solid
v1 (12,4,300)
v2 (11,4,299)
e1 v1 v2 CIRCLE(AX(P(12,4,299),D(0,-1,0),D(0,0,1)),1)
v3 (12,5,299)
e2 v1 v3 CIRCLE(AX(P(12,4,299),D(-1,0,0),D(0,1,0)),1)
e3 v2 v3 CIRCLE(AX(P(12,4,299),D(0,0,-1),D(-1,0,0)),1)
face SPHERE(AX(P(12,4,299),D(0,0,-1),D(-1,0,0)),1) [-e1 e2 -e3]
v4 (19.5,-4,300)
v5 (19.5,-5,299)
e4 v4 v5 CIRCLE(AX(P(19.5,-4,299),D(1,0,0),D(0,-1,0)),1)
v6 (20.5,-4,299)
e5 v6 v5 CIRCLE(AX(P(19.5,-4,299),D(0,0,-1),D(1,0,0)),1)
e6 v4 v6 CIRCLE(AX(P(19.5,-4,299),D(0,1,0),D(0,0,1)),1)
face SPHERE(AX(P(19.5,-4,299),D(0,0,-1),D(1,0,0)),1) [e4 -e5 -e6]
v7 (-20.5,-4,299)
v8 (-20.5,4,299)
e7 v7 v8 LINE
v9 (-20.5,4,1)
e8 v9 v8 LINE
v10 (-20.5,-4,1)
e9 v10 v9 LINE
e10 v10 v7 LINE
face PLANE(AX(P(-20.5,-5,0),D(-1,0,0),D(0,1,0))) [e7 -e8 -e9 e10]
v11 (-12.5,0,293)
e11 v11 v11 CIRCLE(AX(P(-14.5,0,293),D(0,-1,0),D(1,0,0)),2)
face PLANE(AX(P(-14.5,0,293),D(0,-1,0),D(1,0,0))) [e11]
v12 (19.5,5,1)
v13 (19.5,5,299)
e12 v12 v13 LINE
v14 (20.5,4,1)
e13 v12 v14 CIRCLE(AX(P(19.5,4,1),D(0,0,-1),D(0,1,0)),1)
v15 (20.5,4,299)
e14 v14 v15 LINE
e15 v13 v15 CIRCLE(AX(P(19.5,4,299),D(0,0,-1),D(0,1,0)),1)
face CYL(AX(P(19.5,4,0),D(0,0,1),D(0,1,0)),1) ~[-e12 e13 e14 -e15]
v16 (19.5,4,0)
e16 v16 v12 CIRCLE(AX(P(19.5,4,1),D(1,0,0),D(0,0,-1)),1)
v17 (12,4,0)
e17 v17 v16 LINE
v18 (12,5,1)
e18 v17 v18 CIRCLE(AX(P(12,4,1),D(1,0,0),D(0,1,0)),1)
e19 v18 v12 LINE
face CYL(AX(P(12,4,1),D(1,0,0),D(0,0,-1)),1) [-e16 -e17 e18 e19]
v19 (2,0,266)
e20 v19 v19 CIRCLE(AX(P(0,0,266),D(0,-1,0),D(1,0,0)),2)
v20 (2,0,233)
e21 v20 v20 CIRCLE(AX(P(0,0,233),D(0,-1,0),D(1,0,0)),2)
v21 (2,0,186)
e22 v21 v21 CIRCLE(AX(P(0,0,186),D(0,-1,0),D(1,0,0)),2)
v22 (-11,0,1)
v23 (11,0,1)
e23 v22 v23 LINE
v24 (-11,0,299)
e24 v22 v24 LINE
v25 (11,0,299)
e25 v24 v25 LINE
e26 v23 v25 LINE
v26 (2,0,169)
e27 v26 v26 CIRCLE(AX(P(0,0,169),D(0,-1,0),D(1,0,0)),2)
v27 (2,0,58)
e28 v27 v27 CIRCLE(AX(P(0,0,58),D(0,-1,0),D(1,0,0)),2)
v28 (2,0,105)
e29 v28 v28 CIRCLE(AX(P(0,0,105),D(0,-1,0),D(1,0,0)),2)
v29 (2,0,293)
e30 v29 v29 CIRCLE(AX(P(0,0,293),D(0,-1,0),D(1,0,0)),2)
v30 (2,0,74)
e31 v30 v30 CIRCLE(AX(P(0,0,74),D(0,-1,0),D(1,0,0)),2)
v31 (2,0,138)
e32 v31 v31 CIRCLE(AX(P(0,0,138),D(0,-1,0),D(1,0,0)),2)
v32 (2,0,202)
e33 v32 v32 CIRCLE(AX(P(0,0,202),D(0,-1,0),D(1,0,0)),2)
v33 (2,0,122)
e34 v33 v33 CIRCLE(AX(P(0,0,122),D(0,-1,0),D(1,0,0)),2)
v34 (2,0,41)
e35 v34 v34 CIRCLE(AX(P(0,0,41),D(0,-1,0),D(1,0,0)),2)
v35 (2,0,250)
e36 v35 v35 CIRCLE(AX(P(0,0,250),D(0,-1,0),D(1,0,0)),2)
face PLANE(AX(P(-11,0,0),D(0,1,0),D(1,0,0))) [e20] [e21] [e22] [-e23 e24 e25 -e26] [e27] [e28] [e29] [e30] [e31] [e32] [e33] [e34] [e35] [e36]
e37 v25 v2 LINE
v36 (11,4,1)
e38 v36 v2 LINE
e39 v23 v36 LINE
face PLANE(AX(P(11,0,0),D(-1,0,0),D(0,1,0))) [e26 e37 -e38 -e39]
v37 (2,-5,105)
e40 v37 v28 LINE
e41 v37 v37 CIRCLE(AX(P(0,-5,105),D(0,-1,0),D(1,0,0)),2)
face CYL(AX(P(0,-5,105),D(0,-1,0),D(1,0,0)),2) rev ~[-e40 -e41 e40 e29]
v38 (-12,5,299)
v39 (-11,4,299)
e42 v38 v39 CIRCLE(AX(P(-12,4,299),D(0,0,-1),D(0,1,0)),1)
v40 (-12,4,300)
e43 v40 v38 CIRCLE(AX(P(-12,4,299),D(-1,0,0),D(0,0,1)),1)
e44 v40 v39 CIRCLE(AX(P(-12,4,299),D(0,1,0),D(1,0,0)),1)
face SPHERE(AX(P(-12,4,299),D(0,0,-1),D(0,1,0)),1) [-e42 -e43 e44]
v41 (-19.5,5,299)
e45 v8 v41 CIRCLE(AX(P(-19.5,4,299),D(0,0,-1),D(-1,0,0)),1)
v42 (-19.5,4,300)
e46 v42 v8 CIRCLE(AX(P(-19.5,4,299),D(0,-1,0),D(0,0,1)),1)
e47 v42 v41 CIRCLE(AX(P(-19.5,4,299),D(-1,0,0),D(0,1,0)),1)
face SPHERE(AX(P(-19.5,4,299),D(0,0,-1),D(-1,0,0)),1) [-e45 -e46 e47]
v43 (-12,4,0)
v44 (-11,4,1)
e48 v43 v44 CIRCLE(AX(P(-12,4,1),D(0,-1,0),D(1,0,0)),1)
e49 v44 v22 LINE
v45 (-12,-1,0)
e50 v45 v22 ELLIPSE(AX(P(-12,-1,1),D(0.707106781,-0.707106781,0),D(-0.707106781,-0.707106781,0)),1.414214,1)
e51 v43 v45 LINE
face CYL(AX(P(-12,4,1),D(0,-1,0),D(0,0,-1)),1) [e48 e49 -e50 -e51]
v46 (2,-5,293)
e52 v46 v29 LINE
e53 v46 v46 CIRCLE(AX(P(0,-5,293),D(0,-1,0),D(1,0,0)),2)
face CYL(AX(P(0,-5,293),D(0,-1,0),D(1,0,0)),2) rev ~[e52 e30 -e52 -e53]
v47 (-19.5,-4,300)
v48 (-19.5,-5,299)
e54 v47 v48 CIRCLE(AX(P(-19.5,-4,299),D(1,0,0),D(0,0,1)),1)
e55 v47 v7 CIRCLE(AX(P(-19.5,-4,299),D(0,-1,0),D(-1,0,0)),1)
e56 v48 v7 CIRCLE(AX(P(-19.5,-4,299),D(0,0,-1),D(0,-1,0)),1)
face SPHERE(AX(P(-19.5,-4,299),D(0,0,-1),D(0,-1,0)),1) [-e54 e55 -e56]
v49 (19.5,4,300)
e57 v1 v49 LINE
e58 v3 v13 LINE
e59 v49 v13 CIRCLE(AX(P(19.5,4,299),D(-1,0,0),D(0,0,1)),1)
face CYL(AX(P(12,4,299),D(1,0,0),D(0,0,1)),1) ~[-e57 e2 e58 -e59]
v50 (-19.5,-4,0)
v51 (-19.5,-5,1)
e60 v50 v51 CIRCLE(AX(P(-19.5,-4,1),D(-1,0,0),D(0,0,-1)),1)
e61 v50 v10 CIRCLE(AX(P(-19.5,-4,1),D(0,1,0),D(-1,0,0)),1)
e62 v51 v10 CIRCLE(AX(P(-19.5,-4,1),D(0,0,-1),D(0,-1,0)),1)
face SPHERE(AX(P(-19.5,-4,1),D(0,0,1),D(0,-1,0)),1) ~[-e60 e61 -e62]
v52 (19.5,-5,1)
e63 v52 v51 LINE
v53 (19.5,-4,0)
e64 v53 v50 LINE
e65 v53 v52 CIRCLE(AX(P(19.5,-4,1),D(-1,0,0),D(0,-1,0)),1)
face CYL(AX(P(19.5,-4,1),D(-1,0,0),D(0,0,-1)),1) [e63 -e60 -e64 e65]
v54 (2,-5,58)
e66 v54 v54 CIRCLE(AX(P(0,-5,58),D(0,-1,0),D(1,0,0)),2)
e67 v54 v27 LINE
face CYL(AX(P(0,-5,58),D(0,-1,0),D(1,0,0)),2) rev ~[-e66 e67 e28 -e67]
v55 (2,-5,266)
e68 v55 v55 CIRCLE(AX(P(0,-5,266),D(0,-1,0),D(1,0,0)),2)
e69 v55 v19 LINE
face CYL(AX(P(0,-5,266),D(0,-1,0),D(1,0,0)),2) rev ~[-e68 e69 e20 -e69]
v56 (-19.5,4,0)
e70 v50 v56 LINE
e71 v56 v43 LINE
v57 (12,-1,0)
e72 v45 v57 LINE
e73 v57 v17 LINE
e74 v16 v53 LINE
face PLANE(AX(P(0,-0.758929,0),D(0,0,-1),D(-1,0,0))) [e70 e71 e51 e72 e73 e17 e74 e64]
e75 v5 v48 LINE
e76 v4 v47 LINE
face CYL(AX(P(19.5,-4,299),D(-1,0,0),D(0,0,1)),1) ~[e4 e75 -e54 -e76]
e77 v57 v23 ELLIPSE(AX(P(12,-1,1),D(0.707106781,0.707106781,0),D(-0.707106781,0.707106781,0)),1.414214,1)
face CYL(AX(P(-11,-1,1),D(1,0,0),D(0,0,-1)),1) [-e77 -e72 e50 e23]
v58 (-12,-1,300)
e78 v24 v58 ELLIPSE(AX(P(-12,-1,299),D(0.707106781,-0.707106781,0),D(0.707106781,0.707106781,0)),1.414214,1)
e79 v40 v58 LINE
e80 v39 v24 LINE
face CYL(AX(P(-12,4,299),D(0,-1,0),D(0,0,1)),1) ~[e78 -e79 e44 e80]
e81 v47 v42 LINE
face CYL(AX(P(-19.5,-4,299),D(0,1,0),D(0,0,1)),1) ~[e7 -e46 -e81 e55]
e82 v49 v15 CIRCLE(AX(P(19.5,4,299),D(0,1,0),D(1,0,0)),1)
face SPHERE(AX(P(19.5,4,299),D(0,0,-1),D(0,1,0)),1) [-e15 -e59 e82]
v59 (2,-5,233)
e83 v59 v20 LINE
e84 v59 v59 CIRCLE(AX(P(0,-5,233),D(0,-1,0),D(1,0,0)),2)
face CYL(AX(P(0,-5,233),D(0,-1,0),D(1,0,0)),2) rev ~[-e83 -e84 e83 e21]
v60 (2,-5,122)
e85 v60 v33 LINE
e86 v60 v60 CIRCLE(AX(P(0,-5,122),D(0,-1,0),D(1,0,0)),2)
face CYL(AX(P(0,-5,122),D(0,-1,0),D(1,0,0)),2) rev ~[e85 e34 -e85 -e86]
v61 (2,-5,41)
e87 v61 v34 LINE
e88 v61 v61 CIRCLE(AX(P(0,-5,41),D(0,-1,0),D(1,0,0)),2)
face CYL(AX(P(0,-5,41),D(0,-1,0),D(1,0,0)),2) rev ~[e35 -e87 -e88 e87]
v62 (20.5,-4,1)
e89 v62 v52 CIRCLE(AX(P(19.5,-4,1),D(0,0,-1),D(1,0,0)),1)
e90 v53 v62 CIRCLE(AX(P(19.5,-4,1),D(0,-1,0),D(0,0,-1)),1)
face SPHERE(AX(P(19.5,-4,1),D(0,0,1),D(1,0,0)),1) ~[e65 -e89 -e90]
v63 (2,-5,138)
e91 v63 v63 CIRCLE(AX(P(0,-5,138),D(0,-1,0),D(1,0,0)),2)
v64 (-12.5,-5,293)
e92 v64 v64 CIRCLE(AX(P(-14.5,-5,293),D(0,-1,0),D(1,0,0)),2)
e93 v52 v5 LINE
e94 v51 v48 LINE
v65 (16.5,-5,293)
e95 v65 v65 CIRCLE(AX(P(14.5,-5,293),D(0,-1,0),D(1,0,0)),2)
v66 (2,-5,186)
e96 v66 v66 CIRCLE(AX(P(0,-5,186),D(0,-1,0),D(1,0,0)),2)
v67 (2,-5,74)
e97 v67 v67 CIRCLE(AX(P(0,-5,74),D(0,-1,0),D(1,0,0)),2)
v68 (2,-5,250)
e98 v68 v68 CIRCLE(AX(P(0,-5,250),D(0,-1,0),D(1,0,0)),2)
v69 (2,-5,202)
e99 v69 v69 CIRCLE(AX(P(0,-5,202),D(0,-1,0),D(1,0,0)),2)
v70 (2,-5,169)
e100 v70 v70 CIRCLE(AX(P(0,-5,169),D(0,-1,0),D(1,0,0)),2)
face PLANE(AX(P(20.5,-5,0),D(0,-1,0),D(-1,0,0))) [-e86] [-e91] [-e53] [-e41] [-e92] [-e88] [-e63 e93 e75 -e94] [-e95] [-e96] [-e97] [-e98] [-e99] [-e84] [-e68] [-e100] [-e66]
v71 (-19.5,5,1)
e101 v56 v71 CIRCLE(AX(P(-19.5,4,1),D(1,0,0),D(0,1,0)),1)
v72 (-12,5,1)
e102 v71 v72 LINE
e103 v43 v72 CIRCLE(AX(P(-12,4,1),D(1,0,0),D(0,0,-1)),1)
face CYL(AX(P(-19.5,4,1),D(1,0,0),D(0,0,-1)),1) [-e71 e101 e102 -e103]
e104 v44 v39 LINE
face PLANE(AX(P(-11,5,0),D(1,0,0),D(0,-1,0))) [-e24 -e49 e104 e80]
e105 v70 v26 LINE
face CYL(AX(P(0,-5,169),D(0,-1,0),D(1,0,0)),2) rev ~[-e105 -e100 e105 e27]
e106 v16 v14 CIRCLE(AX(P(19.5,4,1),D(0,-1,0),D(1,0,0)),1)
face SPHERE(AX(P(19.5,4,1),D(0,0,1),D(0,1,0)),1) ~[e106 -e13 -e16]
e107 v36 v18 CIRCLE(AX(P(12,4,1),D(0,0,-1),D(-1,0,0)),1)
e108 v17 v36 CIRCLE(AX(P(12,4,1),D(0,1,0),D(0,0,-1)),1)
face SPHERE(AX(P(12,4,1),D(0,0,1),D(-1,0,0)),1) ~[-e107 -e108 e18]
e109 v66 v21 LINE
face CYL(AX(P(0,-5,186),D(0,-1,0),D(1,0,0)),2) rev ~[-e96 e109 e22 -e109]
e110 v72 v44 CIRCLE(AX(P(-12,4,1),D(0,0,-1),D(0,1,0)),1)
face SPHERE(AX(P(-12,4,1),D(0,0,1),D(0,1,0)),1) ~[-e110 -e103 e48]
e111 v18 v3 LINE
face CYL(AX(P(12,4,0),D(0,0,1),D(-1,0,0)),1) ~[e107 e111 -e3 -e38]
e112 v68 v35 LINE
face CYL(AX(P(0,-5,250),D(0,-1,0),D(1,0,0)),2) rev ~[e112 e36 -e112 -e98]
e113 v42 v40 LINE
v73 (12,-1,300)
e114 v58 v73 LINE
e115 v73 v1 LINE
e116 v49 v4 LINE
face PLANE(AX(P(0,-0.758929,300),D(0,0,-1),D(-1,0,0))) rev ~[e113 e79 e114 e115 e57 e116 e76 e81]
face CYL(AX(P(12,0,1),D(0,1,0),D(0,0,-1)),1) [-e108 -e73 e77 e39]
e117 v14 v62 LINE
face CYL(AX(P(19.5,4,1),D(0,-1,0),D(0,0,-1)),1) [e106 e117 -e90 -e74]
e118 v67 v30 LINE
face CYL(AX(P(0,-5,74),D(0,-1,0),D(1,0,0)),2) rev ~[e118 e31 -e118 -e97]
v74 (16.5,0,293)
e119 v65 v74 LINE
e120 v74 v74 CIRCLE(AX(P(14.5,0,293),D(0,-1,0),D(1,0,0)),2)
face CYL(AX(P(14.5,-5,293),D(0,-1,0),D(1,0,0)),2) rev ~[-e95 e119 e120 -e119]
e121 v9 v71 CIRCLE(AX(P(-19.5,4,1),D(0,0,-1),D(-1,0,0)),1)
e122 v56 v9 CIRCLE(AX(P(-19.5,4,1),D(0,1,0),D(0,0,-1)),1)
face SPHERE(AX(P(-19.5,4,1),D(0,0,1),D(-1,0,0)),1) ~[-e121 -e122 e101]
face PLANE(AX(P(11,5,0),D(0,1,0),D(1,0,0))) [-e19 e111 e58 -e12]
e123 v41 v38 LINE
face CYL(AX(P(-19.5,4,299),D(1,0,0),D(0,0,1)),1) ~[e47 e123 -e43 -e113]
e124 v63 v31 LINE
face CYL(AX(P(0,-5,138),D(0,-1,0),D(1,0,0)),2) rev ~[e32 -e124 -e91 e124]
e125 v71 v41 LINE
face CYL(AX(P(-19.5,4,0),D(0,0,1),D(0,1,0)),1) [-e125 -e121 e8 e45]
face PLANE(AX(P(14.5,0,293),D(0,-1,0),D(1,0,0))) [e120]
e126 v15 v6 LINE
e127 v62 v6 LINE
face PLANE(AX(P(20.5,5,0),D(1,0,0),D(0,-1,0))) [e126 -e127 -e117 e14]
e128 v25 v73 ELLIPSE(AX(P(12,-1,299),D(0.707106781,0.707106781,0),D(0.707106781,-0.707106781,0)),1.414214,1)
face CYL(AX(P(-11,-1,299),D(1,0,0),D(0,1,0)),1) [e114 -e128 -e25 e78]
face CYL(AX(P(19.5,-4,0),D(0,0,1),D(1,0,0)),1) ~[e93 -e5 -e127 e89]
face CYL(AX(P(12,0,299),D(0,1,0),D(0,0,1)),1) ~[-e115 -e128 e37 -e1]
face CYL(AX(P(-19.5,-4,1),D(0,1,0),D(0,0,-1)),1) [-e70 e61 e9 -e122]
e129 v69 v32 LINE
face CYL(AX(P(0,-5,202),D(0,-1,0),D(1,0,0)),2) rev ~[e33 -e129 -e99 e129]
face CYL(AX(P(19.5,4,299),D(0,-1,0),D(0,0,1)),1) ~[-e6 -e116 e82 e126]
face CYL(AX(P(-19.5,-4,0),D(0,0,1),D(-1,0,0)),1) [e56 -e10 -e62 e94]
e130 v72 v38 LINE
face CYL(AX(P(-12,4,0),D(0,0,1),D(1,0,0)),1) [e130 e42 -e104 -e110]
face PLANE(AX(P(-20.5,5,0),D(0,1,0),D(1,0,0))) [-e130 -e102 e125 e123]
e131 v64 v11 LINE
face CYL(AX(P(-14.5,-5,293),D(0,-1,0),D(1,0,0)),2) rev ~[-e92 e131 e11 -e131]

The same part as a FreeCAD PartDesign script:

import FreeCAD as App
import Part
import Sketcher
from FreeCAD import Vector


def edges_at(feature, points):
    """Names of the edges that pass closest to the given points."""
    edges = feature.Shape.Edges
    near = lambda p: min(range(len(edges)), key=lambda i: edges[i].distToShape(Part.Vertex(*p))[0])
    return sorted({f"Edge{near(p) + 1}" for p in points})

doc = App.newDocument("Part")
body = doc.addObject("PartDesign::Body", "Body")

sketch1 = doc.addObject("Sketcher::SketchObject", "Sketch")
body.addObject(sketch1)
sketch1.AttachmentSupport = (doc.XY_Plane, [""])
sketch1.MapMode = "FlatFace"
sketch1.addGeometry(Part.LineSegment(Vector(-11, 0, 0), Vector(-11, 5, 0)), False)
sketch1.addGeometry(Part.LineSegment(Vector(-11, 5, 0), Vector(-20, 5, 0)), False)
sketch1.addGeometry(Part.LineSegment(Vector(-20, 5, 0), Vector(-20, -5, 0)), False)
sketch1.addGeometry(Part.LineSegment(Vector(-20, -5, 0), Vector(20, -5, 0)), False)
sketch1.addGeometry(Part.LineSegment(Vector(20, -5, 0), Vector(20, 5, 0)), False)
sketch1.addGeometry(Part.LineSegment(Vector(20, 5, 0), Vector(11, 5, 0)), False)
sketch1.addGeometry(Part.LineSegment(Vector(11, 5, 0), Vector(11, 0, 0)), False)
sketch1.addGeometry(Part.LineSegment(Vector(11, 0, 0), Vector(-11, 0, 0)), False)
sketch1.addConstraint(Sketcher.Constraint("Coincident", 0, 2, 1, 1))
sketch1.addConstraint(Sketcher.Constraint("Coincident", 1, 2, 2, 1))
sketch1.addConstraint(Sketcher.Constraint("Coincident", 2, 2, 3, 1))
sketch1.addConstraint(Sketcher.Constraint("Coincident", 3, 2, 4, 1))
sketch1.addConstraint(Sketcher.Constraint("Coincident", 4, 2, 5, 1))
sketch1.addConstraint(Sketcher.Constraint("Coincident", 5, 2, 6, 1))
sketch1.addConstraint(Sketcher.Constraint("Coincident", 6, 2, 7, 1))
sketch1.addConstraint(Sketcher.Constraint("Coincident", 7, 2, 0, 1))
sketch1.addConstraint(Sketcher.Constraint("Vertical", 0))
sketch1.addConstraint(Sketcher.Constraint("Horizontal", 1))
sketch1.addConstraint(Sketcher.Constraint("Vertical", 2))
sketch1.addConstraint(Sketcher.Constraint("Horizontal", 3))
sketch1.addConstraint(Sketcher.Constraint("Vertical", 4))
sketch1.addConstraint(Sketcher.Constraint("Horizontal", 5))
sketch1.addConstraint(Sketcher.Constraint("Vertical", 6))
sketch1.addConstraint(Sketcher.Constraint("Horizontal", 7))
sketch1.addConstraint(Sketcher.Constraint("Symmetric", 1, 2, 3, 2, -1, 1))
sketch1.addConstraint(Sketcher.Constraint("Symmetric", 6, 2, 7, 2, -1, 1))
sketch1.addConstraint(Sketcher.Constraint("Horizontal", 1, 2, 4, 2))
sketch1.addConstraint(Sketcher.Constraint("DistanceX", 3, 1, 3, 2, 41.0))
sketch1.addConstraint(Sketcher.Constraint("DistanceX", 7, 2, 7, 1, 22.0))
sketch1.addConstraint(Sketcher.Constraint("DistanceY", 0, 1, 0, 2, 5.0))
pad1 = doc.addObject("PartDesign::Pad", "Pad")
body.addObject(pad1)
pad1.Profile = sketch1
pad1.Length = 300

sketch2 = doc.addObject("Sketcher::SketchObject", "Sketch001")
body.addObject(sketch2)
sketch2.AttachmentSupport = (doc.XZ_Plane, [""])
sketch2.MapMode = "FlatFace"
sketch2.AttachmentOffset = App.Placement(Vector(0, 0, 5), App.Rotation())
sketch2.addGeometry(Part.Circle(Vector(-14.5, 293, 0), Vector(0, 0, 1), 2), False)
sketch2.addGeometry(Part.Circle(Vector(0, 293, 0), Vector(0, 0, 1), 2), False)
sketch2.addGeometry(Part.Circle(Vector(14.5, 293, 0), Vector(0, 0, 1), 2), False)
sketch2.addGeometry(Part.Circle(Vector(0, 266, 0), Vector(0, 0, 1), 2), False)
sketch2.addGeometry(Part.Circle(Vector(0, 250, 0), Vector(0, 0, 1), 2), False)
sketch2.addGeometry(Part.Circle(Vector(0, 233, 0), Vector(0, 0, 1), 2), False)
sketch2.addGeometry(Part.Circle(Vector(0, 169, 0), Vector(0, 0, 1), 2), False)
sketch2.addGeometry(Part.Circle(Vector(0, 105, 0), Vector(0, 0, 1), 2), False)
sketch2.addGeometry(Part.Circle(Vector(0, 186, 0), Vector(0, 0, 1), 2), False)
sketch2.addGeometry(Part.Circle(Vector(0, 122, 0), Vector(0, 0, 1), 2), False)
sketch2.addGeometry(Part.Circle(Vector(0, 202, 0), Vector(0, 0, 1), 2), False)
sketch2.addGeometry(Part.Circle(Vector(0, 138, 0), Vector(0, 0, 1), 2), False)
sketch2.addGeometry(Part.Circle(Vector(0, 74, 0), Vector(0, 0, 1), 2), False)
sketch2.addGeometry(Part.Circle(Vector(0, 58, 0), Vector(0, 0, 1), 2), False)
sketch2.addGeometry(Part.Circle(Vector(0, 41, 0), Vector(0, 0, 1), 2), False)
sketch2.addConstraint(Sketcher.Constraint("Equal", 0, 1))
sketch2.addConstraint(Sketcher.Constraint("Equal", 1, 2))
sketch2.addConstraint(Sketcher.Constraint("Equal", 2, 3))
sketch2.addConstraint(Sketcher.Constraint("Equal", 3, 4))
sketch2.addConstraint(Sketcher.Constraint("Equal", 4, 5))
sketch2.addConstraint(Sketcher.Constraint("Equal", 5, 6))
sketch2.addConstraint(Sketcher.Constraint("Equal", 6, 7))
sketch2.addConstraint(Sketcher.Constraint("Equal", 7, 8))
sketch2.addConstraint(Sketcher.Constraint("Equal", 8, 9))
sketch2.addConstraint(Sketcher.Constraint("Equal", 9, 10))
sketch2.addConstraint(Sketcher.Constraint("Equal", 10, 11))
sketch2.addConstraint(Sketcher.Constraint("Equal", 11, 12))
sketch2.addConstraint(Sketcher.Constraint("Equal", 12, 13))
sketch2.addConstraint(Sketcher.Constraint("Equal", 13, 14))
sketch2.addConstraint(Sketcher.Constraint("Symmetric", 0, 3, 2, 3, -2))
sketch2.addConstraint(Sketcher.Constraint("PointOnObject", 1, 3, -2))
sketch2.addConstraint(Sketcher.Constraint("PointOnObject", 3, 3, -2))
sketch2.addConstraint(Sketcher.Constraint("PointOnObject", 4, 3, -2))
sketch2.addConstraint(Sketcher.Constraint("PointOnObject", 5, 3, -2))
sketch2.addConstraint(Sketcher.Constraint("PointOnObject", 6, 3, -2))
sketch2.addConstraint(Sketcher.Constraint("PointOnObject", 7, 3, -2))
sketch2.addConstraint(Sketcher.Constraint("PointOnObject", 8, 3, -2))
sketch2.addConstraint(Sketcher.Constraint("PointOnObject", 9, 3, -2))
sketch2.addConstraint(Sketcher.Constraint("PointOnObject", 10, 3, -2))
sketch2.addConstraint(Sketcher.Constraint("PointOnObject", 11, 3, -2))
sketch2.addConstraint(Sketcher.Constraint("PointOnObject", 12, 3, -2))
sketch2.addConstraint(Sketcher.Constraint("PointOnObject", 13, 3, -2))
sketch2.addConstraint(Sketcher.Constraint("PointOnObject", 14, 3, -2))
sketch2.addConstraint(Sketcher.Constraint("Horizontal", 0, 3, 1, 3))
sketch2.addConstraint(Sketcher.Constraint("Diameter", 0, 4.0))
sketch2.addConstraint(Sketcher.Constraint("DistanceY", -1, 1, 0, 3, 293.0))
sketch2.addConstraint(Sketcher.Constraint("DistanceY", -1, 1, 3, 3, 266.0))
sketch2.addConstraint(Sketcher.Constraint("DistanceY", -1, 1, 4, 3, 250.0))
sketch2.addConstraint(Sketcher.Constraint("DistanceY", -1, 1, 5, 3, 233.0))
sketch2.addConstraint(Sketcher.Constraint("DistanceY", -1, 1, 6, 3, 169.0))
sketch2.addConstraint(Sketcher.Constraint("DistanceY", -1, 1, 7, 3, 105.0))
sketch2.addConstraint(Sketcher.Constraint("DistanceY", -1, 1, 8, 3, 186.0))
sketch2.addConstraint(Sketcher.Constraint("DistanceY", -1, 1, 9, 3, 122.0))
sketch2.addConstraint(Sketcher.Constraint("DistanceY", -1, 1, 10, 3, 202.0))
sketch2.addConstraint(Sketcher.Constraint("DistanceY", -1, 1, 11, 3, 138.0))
sketch2.addConstraint(Sketcher.Constraint("DistanceY", -1, 1, 12, 3, 74.0))
sketch2.addConstraint(Sketcher.Constraint("DistanceY", -1, 1, 13, 3, 58.0))
sketch2.addConstraint(Sketcher.Constraint("DistanceY", -1, 1, 14, 3, 41.0))
sketch2.addConstraint(Sketcher.Constraint("DistanceX", 0, 3, 2, 3, 29.0))
pocket1 = doc.addObject("PartDesign::Pocket", "Pocket")
body.addObject(pocket1)
pocket1.Profile = sketch2
pocket1.Length = 5
doc.recompute()

fillet = doc.addObject("PartDesign::Fillet", "Fillet")
body.addObject(fillet)
fillet.Base = (pocket1, edges_at(pocket1, [
    (20.5, 5, 150),
    (20.5, -5, 150),
    (-20.5, -5, 150),
    (-20.5, 5, 150),
    (-11, 5, 150),
    (11, 5, 150),
]))
fillet.Radius = 1
doc.recompute()

fillet2 = doc.addObject("PartDesign::Fillet", "Fillet001")
body.addObject(fillet2)
fillet2.Base = (fillet, edges_at(fillet, [
    (0, 0, 300),
    (20.207, -4.707, 300),
    (-11.293, 4.707, 300),
    (11.293, 4.707, 300),
    (-11, 2, 300),
    (11, 2, 0),
    (11, 2, 300),
    (15.75, 5, 0),
    (20.5, 0, 0),
    (0, -5, 0),
    (-20.5, 0, 0),
    (-15.75, 5, 0),
    (20.207, 4.707, 0),
    (-20.207, 4.707, 0),
    (-20.207, -4.707, 0),
    (20.207, -4.707, 0),
    (-11, 2, 0),
    (-11.293, 4.707, 0),
    (11.293, 4.707, 0),
    (15.75, 5, 300),
    (-15.75, 5, 300),
    (-20.5, 0, 300),
    (0, 0, 0),
    (0, -5, 300),
    (20.5, 0, 300),
    (20.207, 4.707, 300),
    (-20.207, 4.707, 300),
    (-20.207, -4.707, 300),
]))
fillet2.Radius = 1

doc.recompute()
